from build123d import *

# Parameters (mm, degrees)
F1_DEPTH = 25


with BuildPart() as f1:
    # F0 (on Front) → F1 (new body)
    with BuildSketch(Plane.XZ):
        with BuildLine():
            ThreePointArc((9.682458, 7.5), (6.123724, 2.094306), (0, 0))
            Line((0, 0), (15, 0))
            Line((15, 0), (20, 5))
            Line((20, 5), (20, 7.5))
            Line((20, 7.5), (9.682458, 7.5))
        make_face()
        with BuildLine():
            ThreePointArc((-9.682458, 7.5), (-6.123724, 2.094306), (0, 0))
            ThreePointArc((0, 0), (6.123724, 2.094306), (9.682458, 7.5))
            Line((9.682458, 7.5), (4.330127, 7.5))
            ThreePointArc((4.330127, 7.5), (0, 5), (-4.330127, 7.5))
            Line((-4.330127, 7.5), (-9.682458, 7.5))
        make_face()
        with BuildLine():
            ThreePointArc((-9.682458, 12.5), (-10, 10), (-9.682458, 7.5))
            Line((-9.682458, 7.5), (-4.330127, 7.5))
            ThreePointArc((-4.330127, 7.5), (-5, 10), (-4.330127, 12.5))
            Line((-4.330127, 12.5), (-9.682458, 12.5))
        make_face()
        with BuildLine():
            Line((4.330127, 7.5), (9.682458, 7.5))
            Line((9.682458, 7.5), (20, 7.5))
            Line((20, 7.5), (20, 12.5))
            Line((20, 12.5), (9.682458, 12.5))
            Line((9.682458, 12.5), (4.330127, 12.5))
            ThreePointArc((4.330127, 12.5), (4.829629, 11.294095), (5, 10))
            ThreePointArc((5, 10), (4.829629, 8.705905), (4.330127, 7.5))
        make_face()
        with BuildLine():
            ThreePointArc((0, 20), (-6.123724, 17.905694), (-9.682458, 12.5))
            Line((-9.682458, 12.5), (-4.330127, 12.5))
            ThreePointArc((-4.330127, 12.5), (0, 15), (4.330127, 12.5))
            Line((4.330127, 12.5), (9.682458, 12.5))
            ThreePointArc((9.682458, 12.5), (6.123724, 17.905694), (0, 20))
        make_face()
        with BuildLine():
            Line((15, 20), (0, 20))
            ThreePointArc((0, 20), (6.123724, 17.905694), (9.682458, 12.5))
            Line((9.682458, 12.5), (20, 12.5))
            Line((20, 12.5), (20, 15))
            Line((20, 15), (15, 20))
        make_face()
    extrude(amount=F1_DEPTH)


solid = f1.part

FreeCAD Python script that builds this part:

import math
import FreeCAD as App
import Part
import Sketcher
Q = App.Units.Quantity

doc = App.newDocument("Part")
body = doc.addObject("PartDesign::Body", "Body")

# Sketch on XZ plane
sketch1 = body.newObject("Sketcher::SketchObject", "Sketch")
sketch1.AttachmentSupport = (doc.getObject("XZ_Plane"), [""])
sketch1.MapMode = "FlatFace"
sketch1.addGeometry(Part.LineSegment(App.Vector(0, 0, 0), App.Vector(15, 0, 0)), False)
sketch1.addGeometry(Part.LineSegment(App.Vector(15, 0, 0), App.Vector(20, 5, 0)), False)
sketch1.addGeometry(Part.LineSegment(App.Vector(20, 5, 0), App.Vector(20, 15, 0)), False)
sketch1.addGeometry(Part.LineSegment(App.Vector(20, 15, 0), App.Vector(15, 20, 0)), False)
sketch1.addGeometry(Part.LineSegment(App.Vector(15, 20, 0), App.Vector(0, 20, 0)), False)
sketch1.addGeometry(Part.ArcOfCircle(Part.Circle(App.Vector(0, 10, 0), App.Vector(0, 0, 1), 10), math.radians(90), math.radians(166)), False)
sketch1.addGeometry(Part.ArcOfCircle(Part.Circle(App.Vector(0, 10, 0), App.Vector(0, 0, 1), 10), math.radians(166), math.radians(194)), False)
sketch1.addGeometry(Part.ArcOfCircle(Part.Circle(App.Vector(0, 10, 0), App.Vector(0, 0, 1), 10), math.radians(-166), math.radians(-90)), False)
sketch1.addGeometry(Part.ArcOfCircle(Part.Circle(App.Vector(0, 10, 0), App.Vector(0, 0, 1), 5), math.radians(0), math.radians(30)), False)
sketch1.addGeometry(Part.ArcOfCircle(Part.Circle(App.Vector(0, 10, 0), App.Vector(0, 0, 1), 5), math.radians(-30), math.radians(0)), False)
sketch1.addGeometry(Part.ArcOfCircle(Part.Circle(App.Vector(0, 10, 0), App.Vector(0, 0, 1), 5), math.radians(-150), math.radians(-30)), False)
sketch1.addGeometry(Part.ArcOfCircle(Part.Circle(App.Vector(0, 10, 0), App.Vector(0, 0, 1), 5), math.radians(150), math.radians(210)), False)
sketch1.addGeometry(Part.ArcOfCircle(Part.Circle(App.Vector(0, 10, 0), App.Vector(0, 0, 1), 5), math.radians(30), math.radians(150)), False)
sketch1.addConstraint(Sketcher.Constraint("Coincident", 0, 2, 1, 1))
sketch1.addConstraint(Sketcher.Constraint("Coincident", 1, 2, 2, 1))
sketch1.addConstraint(Sketcher.Constraint("Coincident", 2, 2, 3, 1))
sketch1.addConstraint(Sketcher.Constraint("Coincident", 3, 2, 4, 1))
sketch1.addConstraint(Sketcher.Constraint("Tangent", 4, 2, 5, 1))
sketch1.addConstraint(Sketcher.Constraint("Tangent", 5, 2, 6, 1))
sketch1.addConstraint(Sketcher.Constraint("Tangent", 6, 2, 7, 1))
sketch1.addConstraint(Sketcher.Constraint("Tangent", 7, 2, 0, 1))
sketch1.addConstraint(Sketcher.Constraint("Tangent", 8, 1, 9, 2))
sketch1.addConstraint(Sketcher.Constraint("Tangent", 9, 1, 10, 2))
sketch1.addConstraint(Sketcher.Constraint("Tangent", 10, 1, 11, 2))
sketch1.addConstraint(Sketcher.Constraint("Tangent", 11, 1, 12, 2))
sketch1.addConstraint(Sketcher.Constraint("Tangent", 12, 1, 8, 2))
sketch1.addConstraint(Sketcher.Constraint("Horizontal", 0))
sketch1.addConstraint(Sketcher.Constraint("Vertical", 2))
sketch1.addConstraint(Sketcher.Constraint("Horizontal", 4))
sketch1.addConstraint(Sketcher.Constraint("Coincident", 7, 2, -1, 1))
sketch1.addConstraint(Sketcher.Constraint("Coincident", 7, 3, 5, 3))
sketch1.addConstraint(Sketcher.Constraint("Coincident", 8, 3, 5, 3))
sketch1.addConstraint(Sketcher.Constraint("Coincident", 10, 3, 5, 3))
sketch1.addConstraint(Sketcher.Constraint("Perpendicular", 1, 3))
sketch1.addConstraint(Sketcher.Constraint("Horizontal", 12, 3, 8, 1))
sketch1.addConstraint(Sketcher.Constraint("Horizontal", 6, 2, 9, 1))
sketch1.addConstraint(Sketcher.Constraint("Horizontal", 9, 1, 10, 1))
sketch1.addConstraint(Sketcher.Constraint("Horizontal", 5, 2, 11, 1))
sketch1.addConstraint(Sketcher.Constraint("Horizontal", 11, 1, 12, 1))
sketch1.addConstraint(Sketcher.Constraint("Vertical", 0, 2, 3, 2))
sketch1.addConstraint(Sketcher.Constraint("Vertical", 5, 2, 6, 2))
sketch1.addConstraint(Sketcher.Constraint("Equal", 1, 3))
sketch1.addConstraint(Sketcher.Constraint("Radius", 5, Q("10 mm")))
sketch1.addConstraint(Sketcher.Constraint("Radius", 10, Q("5 mm")))
sketch1.addConstraint(Sketcher.Constraint("DistanceX", 0, 1, 0, 2, Q("15 mm")))
sketch1.addConstraint(Sketcher.Constraint("DistanceY", 2, 1, 2, 2, Q("10 mm")))
sketch1.addConstraint(Sketcher.Constraint("DistanceY", 6, 2, 5, 2, Q("5 mm")))
pad1 = body.newObject("PartDesign::Pad", "Pad")
pad1.Profile = sketch1
pad1.Length = 25

doc.recompute()
